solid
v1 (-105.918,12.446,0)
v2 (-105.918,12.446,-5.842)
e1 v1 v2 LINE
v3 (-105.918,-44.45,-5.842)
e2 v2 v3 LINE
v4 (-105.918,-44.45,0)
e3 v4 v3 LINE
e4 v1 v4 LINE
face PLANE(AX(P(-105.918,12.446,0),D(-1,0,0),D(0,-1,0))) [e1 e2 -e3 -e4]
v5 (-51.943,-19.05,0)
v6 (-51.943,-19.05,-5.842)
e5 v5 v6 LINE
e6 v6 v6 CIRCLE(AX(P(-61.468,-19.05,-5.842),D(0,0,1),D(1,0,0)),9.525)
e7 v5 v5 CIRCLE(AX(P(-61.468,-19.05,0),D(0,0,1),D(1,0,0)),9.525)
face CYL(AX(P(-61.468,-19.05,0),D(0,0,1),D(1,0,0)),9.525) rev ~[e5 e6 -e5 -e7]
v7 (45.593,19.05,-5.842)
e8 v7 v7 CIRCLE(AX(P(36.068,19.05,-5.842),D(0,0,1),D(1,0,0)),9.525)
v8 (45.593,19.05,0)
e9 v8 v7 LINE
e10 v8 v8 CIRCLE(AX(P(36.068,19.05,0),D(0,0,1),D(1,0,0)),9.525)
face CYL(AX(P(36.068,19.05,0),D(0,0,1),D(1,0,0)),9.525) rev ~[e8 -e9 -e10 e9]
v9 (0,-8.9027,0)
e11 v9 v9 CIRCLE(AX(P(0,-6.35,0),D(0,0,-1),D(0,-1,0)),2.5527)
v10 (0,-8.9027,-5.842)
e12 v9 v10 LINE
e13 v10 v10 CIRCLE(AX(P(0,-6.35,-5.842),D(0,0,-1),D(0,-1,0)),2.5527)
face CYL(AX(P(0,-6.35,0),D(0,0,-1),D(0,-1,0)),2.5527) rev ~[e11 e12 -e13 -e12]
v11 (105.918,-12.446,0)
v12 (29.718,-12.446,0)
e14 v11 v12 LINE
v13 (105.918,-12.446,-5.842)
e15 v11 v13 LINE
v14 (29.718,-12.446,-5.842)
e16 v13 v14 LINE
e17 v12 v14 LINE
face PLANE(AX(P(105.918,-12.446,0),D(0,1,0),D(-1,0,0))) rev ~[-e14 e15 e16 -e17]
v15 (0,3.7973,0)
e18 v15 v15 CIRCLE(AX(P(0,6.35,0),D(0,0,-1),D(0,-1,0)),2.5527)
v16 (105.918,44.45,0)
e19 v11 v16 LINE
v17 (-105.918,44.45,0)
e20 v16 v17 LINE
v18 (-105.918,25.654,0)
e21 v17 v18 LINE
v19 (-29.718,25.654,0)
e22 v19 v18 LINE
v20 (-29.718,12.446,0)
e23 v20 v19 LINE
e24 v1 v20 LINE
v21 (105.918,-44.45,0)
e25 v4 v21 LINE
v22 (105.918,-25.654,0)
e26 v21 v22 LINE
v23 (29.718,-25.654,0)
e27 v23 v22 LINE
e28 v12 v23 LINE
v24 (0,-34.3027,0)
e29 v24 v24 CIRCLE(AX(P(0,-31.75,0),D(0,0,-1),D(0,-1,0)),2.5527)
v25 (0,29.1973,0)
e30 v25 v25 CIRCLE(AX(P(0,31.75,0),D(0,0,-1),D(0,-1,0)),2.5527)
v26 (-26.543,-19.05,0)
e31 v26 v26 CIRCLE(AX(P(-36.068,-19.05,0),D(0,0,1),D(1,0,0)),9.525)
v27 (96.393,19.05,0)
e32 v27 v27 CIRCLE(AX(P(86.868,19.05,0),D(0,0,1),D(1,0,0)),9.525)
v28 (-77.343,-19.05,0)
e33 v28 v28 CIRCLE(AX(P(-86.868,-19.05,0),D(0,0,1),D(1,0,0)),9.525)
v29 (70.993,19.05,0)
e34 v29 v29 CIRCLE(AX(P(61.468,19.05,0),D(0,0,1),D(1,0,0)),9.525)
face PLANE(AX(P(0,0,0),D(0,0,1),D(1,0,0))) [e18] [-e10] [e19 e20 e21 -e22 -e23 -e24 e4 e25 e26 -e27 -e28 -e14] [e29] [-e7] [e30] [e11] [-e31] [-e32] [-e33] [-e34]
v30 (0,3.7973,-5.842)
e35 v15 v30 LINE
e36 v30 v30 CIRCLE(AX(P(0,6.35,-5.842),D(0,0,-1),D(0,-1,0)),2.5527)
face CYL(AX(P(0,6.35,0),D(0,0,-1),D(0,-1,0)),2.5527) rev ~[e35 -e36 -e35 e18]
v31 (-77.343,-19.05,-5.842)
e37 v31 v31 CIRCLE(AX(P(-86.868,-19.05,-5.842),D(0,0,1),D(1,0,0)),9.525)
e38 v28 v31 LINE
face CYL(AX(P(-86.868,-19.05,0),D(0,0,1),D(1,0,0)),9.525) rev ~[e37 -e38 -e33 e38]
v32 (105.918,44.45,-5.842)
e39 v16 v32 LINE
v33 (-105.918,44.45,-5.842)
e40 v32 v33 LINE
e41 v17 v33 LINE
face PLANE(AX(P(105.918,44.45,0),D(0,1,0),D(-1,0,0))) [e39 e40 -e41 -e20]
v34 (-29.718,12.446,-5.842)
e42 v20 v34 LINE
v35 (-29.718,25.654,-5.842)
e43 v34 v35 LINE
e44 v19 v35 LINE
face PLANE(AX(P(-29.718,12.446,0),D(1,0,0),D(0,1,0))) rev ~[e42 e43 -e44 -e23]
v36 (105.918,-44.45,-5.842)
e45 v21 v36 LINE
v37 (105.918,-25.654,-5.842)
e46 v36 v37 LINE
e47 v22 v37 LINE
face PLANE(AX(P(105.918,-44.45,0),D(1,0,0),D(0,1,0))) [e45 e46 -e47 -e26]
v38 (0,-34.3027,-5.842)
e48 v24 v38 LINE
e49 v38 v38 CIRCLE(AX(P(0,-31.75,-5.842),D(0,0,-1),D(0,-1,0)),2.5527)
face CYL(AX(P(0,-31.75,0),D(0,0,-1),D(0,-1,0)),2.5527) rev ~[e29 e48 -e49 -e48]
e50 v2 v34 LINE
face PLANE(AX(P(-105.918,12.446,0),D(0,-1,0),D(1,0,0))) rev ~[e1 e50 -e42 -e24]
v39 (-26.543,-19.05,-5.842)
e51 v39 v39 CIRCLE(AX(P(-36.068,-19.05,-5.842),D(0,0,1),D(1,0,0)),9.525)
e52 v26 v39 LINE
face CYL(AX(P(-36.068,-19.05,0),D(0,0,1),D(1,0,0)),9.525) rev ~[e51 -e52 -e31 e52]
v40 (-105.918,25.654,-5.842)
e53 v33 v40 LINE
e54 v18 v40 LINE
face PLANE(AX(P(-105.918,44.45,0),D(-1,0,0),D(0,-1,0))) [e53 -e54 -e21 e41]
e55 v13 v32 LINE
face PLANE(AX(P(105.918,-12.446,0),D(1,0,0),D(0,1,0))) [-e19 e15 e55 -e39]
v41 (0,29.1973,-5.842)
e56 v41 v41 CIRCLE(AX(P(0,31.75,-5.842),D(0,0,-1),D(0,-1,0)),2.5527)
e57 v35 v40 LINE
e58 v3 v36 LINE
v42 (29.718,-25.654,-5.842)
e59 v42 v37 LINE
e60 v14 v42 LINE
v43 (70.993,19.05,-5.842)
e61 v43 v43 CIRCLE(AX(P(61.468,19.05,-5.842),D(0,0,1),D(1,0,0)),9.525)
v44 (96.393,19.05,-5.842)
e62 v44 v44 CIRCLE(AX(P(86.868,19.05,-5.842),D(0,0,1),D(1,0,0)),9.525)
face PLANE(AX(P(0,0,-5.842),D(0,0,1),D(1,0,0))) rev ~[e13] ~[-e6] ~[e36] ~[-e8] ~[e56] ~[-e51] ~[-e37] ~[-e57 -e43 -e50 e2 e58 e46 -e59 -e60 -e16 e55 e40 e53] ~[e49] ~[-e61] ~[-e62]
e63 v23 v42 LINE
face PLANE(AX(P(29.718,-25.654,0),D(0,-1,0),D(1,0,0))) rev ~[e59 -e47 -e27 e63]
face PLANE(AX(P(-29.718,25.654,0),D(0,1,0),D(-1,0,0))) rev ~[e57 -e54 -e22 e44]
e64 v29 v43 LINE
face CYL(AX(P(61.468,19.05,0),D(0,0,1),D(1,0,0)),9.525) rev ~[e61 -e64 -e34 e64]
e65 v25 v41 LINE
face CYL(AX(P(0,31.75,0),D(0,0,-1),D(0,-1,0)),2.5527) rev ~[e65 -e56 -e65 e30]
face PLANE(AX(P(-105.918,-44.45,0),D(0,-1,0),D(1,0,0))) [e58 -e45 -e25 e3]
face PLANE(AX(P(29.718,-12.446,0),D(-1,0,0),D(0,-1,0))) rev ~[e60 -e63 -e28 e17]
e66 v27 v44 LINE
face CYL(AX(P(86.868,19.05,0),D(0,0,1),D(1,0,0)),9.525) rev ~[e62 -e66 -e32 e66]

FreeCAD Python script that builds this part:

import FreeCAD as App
import Part
import Sketcher
Q = App.Units.Quantity


def add_polygon(sketch, points):
    """Adds a closed chain of lines whose ends are joined by coincident constraints."""
    first, n = sketch.GeometryCount, len(points)
    for a, b in zip(points, points[1:] + points[:1]):
        sketch.addGeometry(Part.LineSegment(App.Vector(*a, 0), App.Vector(*b, 0)), False)
    for i in range(n):
        sketch.addConstraint(Sketcher.Constraint("Coincident", first + i, 2, first + (i + 1) % n, 1))

doc = App.newDocument("Part")
body = doc.addObject("PartDesign::Body", "Body")

sketch1 = body.newObject("Sketcher::SketchObject", "Sketch")
sketch1.AttachmentSupport = (doc.getObject("XY_Plane"), [""])
sketch1.MapMode = "FlatFace"
add_polygon(sketch1, [(-106, 12), (-106, -44), (106, -44), (106, -26), (30, -26), (30, -12), (106, -12), (106, 44), (-106, 44), (-106, 26), (-30, 26), (-30, 12)])
sketch1.addConstraint([
    Sketcher.Constraint("Vertical", 0),
    Sketcher.Constraint("Horizontal", 1),
    Sketcher.Constraint("Vertical", 2),
    Sketcher.Constraint("Horizontal", 3),
    Sketcher.Constraint("Vertical", 4),
    Sketcher.Constraint("Horizontal", 5),
    Sketcher.Constraint("Vertical", 6),
    Sketcher.Constraint("Horizontal", 7),
    Sketcher.Constraint("Vertical", 8),
    Sketcher.Constraint("Horizontal", 9),
    Sketcher.Constraint("Vertical", 10),
    Sketcher.Constraint("Horizontal", 11),
    Sketcher.Constraint("Symmetric", 0, 2, 6, 2, -1, 1),
    Sketcher.Constraint("Symmetric", 2, 2, 8, 2, -1, 1),
    Sketcher.Constraint("Symmetric", 4, 2, 10, 2, -1, 1),
    Sketcher.Constraint("Vertical", 2, 2, 5, 2),
    Sketcher.Constraint("DistanceX", 3, 2, 3, 1, Q("3 in")),
    Sketcher.Constraint("DistanceY", 4, 1, 4, 2, Q("0.52 in")),
    Sketcher.Constraint("DistanceX", 0, 2, -1, 1, Q("4.17 in")),
    Sketcher.Constraint("DistanceY", 0, 2, -1, 1, Q("1.75 in")),
    Sketcher.Constraint("DistanceY", 0, 2, 0, 1, Q("2.24 in")),
])
pad1 = body.newObject("PartDesign::Pad", "Pad")
pad1.Profile = sketch1
pad1.Length = Q("0.23 in")
pad1.Reversed = True

sketch2 = body.newObject("Sketcher::SketchObject", "Sketch001")
sketch2.AttachmentSupport = (doc.getObject("XY_Plane"), [""])
sketch2.MapMode = "FlatFace"
sketch2.addGeometry([
    Part.Circle(App.Vector(0, 31.8, 0), App.Vector(0, 0, 1), 2.6),
    Part.Circle(App.Vector(0, 6.3, 0), App.Vector(0, 0, 1), 2.6),
    Part.Circle(App.Vector(0, -6.3, 0), App.Vector(0, 0, 1), 2.6),
    Part.Circle(App.Vector(0, -31.8, 0), App.Vector(0, 0, 1), 2.6),
], False)
sketch2.addConstraint([
    Sketcher.Constraint("Equal", 0, 1),
    Sketcher.Constraint("Equal", 1, 2),
    Sketcher.Constraint("Equal", 2, 3),
    Sketcher.Constraint("Symmetric", 1, 3, 2, 3, -1, 1),
    Sketcher.Constraint("Symmetric", 0, 3, 3, 3, -1, 1),
    Sketcher.Constraint("PointOnObject", 0, 3, -2),
    Sketcher.Constraint("PointOnObject", 1, 3, -2),
    Sketcher.Constraint("Diameter", 0, Q("0.201 in")),
    Sketcher.Constraint("DistanceY", 1, 3, 0, 3, Q("1 in")),
    Sketcher.Constraint("DistanceY", 2, 3, 1, 3, Q("0.5 in")),
])
doc.recompute()
hole = body.newObject("PartDesign::Hole", "Hole")
hole.Profile = sketch2
hole.ThreadType = "None"
hole.Diameter = Q("0.201 in")
hole.DepthType = "ThroughAll"

sketch3 = body.newObject("Sketcher::SketchObject", "Sketch002")
sketch3.AttachmentSupport = (doc.getObject("XY_Plane"), [""])
sketch3.MapMode = "FlatFace"
sketch3.addGeometry([
    Part.Circle(App.Vector(-87, -19, 0), App.Vector(0, 0, 1), 10),
    Part.Circle(App.Vector(-61, -19, 0), App.Vector(0, 0, 1), 10),
    Part.Circle(App.Vector(-36, -19, 0), App.Vector(0, 0, 1), 10),
    Part.Circle(App.Vector(87, 19, 0), App.Vector(0, 0, 1), 10),
    Part.Circle(App.Vector(61, 19, 0), App.Vector(0, 0, 1), 10),
    Part.Circle(App.Vector(36, 19, 0), App.Vector(0, 0, 1), 10),
], False)
sketch3.addConstraint([
    Sketcher.Constraint("Equal", 0, 1),
    Sketcher.Constraint("Equal", 1, 2),
    Sketcher.Constraint("Equal", 2, 3),
    Sketcher.Constraint("Equal", 3, 4),
    Sketcher.Constraint("Equal", 4, 5),
    Sketcher.Constraint("Symmetric", 0, 3, 3, 3, -1, 1),
    Sketcher.Constraint("Symmetric", 1, 3, 4, 3, -1, 1),
    Sketcher.Constraint("Symmetric", 2, 3, 5, 3, -1, 1),
    Sketcher.Constraint("Horizontal", 0, 3, 1, 3),
    Sketcher.Constraint("Horizontal", 1, 3, 2, 3),
    Sketcher.Constraint("Diameter", 0, Q("0.75 in")),
    Sketcher.Constraint("DistanceX", 0, 3, 1, 3, Q("1 in")),
    Sketcher.Constraint("DistanceX", 1, 3, 2, 3, Q("1 in")),
    Sketcher.Constraint("DistanceY", 0, 3, -1, 1, Q("0.75 in")),
    Sketcher.Constraint("DistanceX", 0, 3, -1, 1, Q("3.42 in")),
])
pocket1 = body.newObject("PartDesign::Pocket", "Pocket")
pocket1.Profile = sketch3
pocket1.Type = "ThroughAll"

doc.recompute()
